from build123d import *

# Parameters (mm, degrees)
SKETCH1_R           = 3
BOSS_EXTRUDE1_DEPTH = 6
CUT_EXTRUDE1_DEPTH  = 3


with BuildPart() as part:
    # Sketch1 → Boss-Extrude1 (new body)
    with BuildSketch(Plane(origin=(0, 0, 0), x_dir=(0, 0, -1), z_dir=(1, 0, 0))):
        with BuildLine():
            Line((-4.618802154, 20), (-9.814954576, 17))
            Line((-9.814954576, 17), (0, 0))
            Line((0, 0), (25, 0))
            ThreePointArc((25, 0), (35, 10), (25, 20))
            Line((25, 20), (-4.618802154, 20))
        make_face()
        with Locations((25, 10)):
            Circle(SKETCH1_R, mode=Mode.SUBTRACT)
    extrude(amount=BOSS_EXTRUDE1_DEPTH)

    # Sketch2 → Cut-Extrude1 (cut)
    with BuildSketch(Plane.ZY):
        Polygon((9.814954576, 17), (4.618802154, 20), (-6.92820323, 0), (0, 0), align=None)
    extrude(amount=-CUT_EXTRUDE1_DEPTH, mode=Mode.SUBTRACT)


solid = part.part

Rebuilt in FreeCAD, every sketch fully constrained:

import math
import FreeCAD as App
import Part
import Sketcher
Q = App.Units.Quantity

doc = App.newDocument("Part")
body = doc.addObject("PartDesign::Body", "Body")

sketch1 = body.newObject("Sketcher::SketchObject", "Sketch")
sketch1.AttachmentSupport = (doc.getObject("YZ_Plane"), [""])
sketch1.MapMode = "FlatFace"
sketch1.addGeometry([
    Part.LineSegment(App.Vector(20, 4.6, 0), App.Vector(17, 9.8, 0)),
    Part.LineSegment(App.Vector(17, 9.8, 0), App.Vector(0, 0, 0)),
    Part.LineSegment(App.Vector(0, 0, 0), App.Vector(0, -25, 0)),
    Part.ArcOfCircle(Part.Circle(App.Vector(10, -25, 0), App.Vector(0, 0, 1), 10), math.radians(180), math.radians(360)),
    Part.LineSegment(App.Vector(20, -25, 0), App.Vector(20, 4.6, 0)),
    Part.Circle(App.Vector(10, -25, 0), App.Vector(0, 0, 1), 3),
], False)
sketch1.addConstraint([
    Sketcher.Constraint("Coincident", 0, 2, 1, 1),
    Sketcher.Constraint("Coincident", 1, 2, 2, 1),
    Sketcher.Constraint("Tangent", 2, 2, 3, 1),
    Sketcher.Constraint("Tangent", 3, 2, 4, 1),
    Sketcher.Constraint("Coincident", 4, 2, 0, 1),
    Sketcher.Constraint("Vertical", 2),
    Sketcher.Constraint("Vertical", 4),
    Sketcher.Constraint("Coincident", 1, 2, -1, 1),
    Sketcher.Constraint("Coincident", 5, 3, 3, 3),
    Sketcher.Constraint("Perpendicular", 0, 1),
    Sketcher.Constraint("Diameter", 5, 6.0),
    Sketcher.Constraint("Radius", 3, 10.0),
    Sketcher.Constraint("DistanceY", 2, 2, 2, 1, 25.0),
    Sketcher.Constraint("Angle", 0, Q("120 deg")),
    Sketcher.Constraint("Distance", 0, 6.0),
])
pad1 = body.newObject("PartDesign::Pad", "Pad")
pad1.Profile = sketch1
pad1.Length = 6

sketch2 = body.newObject("Sketcher::SketchObject", "Sketch001")
sketch2.AttachmentSupport = (doc.getObject("YZ_Plane"), [""])
sketch2.MapMode = "FlatFace"
sketch2.addGeometry([
    Part.LineSegment(App.Vector(17, 10, 0), App.Vector(20, 5, 0)),
    Part.LineSegment(App.Vector(20, 5, 0), App.Vector(0, -7, 0)),
    Part.LineSegment(App.Vector(0, -7, 0), App.Vector(0, 0, 0)),
    Part.LineSegment(App.Vector(0, 0, 0), App.Vector(17, 10, 0)),
], False)
sketch2.addConstraint([
    Sketcher.Constraint("Coincident", 0, 2, 1, 1),
    Sketcher.Constraint("Coincident", 1, 2, 2, 1),
    Sketcher.Constraint("Coincident", 2, 2, 3, 1),
    Sketcher.Constraint("Coincident", 3, 2, 0, 1),
    Sketcher.Constraint("Vertical", 2),
    Sketcher.Constraint("Coincident", 2, 2, -1, 1),
    Sketcher.Constraint("Perpendicular", 0, 1),
    Sketcher.Constraint("Parallel", 1, 3),
    Sketcher.Constraint("Angle", 0, Q("-60 deg")),
    Sketcher.Constraint("Distance", 0, 6.0),
    Sketcher.Constraint("DistanceX", -1, 1, 0, 2, 20.0),
])
pocket1 = body.newObject("PartDesign::Pocket", "Pocket")
pocket1.Profile = sketch2
pocket1.Length = 3
pocket1.Reversed = True

doc.recompute()
